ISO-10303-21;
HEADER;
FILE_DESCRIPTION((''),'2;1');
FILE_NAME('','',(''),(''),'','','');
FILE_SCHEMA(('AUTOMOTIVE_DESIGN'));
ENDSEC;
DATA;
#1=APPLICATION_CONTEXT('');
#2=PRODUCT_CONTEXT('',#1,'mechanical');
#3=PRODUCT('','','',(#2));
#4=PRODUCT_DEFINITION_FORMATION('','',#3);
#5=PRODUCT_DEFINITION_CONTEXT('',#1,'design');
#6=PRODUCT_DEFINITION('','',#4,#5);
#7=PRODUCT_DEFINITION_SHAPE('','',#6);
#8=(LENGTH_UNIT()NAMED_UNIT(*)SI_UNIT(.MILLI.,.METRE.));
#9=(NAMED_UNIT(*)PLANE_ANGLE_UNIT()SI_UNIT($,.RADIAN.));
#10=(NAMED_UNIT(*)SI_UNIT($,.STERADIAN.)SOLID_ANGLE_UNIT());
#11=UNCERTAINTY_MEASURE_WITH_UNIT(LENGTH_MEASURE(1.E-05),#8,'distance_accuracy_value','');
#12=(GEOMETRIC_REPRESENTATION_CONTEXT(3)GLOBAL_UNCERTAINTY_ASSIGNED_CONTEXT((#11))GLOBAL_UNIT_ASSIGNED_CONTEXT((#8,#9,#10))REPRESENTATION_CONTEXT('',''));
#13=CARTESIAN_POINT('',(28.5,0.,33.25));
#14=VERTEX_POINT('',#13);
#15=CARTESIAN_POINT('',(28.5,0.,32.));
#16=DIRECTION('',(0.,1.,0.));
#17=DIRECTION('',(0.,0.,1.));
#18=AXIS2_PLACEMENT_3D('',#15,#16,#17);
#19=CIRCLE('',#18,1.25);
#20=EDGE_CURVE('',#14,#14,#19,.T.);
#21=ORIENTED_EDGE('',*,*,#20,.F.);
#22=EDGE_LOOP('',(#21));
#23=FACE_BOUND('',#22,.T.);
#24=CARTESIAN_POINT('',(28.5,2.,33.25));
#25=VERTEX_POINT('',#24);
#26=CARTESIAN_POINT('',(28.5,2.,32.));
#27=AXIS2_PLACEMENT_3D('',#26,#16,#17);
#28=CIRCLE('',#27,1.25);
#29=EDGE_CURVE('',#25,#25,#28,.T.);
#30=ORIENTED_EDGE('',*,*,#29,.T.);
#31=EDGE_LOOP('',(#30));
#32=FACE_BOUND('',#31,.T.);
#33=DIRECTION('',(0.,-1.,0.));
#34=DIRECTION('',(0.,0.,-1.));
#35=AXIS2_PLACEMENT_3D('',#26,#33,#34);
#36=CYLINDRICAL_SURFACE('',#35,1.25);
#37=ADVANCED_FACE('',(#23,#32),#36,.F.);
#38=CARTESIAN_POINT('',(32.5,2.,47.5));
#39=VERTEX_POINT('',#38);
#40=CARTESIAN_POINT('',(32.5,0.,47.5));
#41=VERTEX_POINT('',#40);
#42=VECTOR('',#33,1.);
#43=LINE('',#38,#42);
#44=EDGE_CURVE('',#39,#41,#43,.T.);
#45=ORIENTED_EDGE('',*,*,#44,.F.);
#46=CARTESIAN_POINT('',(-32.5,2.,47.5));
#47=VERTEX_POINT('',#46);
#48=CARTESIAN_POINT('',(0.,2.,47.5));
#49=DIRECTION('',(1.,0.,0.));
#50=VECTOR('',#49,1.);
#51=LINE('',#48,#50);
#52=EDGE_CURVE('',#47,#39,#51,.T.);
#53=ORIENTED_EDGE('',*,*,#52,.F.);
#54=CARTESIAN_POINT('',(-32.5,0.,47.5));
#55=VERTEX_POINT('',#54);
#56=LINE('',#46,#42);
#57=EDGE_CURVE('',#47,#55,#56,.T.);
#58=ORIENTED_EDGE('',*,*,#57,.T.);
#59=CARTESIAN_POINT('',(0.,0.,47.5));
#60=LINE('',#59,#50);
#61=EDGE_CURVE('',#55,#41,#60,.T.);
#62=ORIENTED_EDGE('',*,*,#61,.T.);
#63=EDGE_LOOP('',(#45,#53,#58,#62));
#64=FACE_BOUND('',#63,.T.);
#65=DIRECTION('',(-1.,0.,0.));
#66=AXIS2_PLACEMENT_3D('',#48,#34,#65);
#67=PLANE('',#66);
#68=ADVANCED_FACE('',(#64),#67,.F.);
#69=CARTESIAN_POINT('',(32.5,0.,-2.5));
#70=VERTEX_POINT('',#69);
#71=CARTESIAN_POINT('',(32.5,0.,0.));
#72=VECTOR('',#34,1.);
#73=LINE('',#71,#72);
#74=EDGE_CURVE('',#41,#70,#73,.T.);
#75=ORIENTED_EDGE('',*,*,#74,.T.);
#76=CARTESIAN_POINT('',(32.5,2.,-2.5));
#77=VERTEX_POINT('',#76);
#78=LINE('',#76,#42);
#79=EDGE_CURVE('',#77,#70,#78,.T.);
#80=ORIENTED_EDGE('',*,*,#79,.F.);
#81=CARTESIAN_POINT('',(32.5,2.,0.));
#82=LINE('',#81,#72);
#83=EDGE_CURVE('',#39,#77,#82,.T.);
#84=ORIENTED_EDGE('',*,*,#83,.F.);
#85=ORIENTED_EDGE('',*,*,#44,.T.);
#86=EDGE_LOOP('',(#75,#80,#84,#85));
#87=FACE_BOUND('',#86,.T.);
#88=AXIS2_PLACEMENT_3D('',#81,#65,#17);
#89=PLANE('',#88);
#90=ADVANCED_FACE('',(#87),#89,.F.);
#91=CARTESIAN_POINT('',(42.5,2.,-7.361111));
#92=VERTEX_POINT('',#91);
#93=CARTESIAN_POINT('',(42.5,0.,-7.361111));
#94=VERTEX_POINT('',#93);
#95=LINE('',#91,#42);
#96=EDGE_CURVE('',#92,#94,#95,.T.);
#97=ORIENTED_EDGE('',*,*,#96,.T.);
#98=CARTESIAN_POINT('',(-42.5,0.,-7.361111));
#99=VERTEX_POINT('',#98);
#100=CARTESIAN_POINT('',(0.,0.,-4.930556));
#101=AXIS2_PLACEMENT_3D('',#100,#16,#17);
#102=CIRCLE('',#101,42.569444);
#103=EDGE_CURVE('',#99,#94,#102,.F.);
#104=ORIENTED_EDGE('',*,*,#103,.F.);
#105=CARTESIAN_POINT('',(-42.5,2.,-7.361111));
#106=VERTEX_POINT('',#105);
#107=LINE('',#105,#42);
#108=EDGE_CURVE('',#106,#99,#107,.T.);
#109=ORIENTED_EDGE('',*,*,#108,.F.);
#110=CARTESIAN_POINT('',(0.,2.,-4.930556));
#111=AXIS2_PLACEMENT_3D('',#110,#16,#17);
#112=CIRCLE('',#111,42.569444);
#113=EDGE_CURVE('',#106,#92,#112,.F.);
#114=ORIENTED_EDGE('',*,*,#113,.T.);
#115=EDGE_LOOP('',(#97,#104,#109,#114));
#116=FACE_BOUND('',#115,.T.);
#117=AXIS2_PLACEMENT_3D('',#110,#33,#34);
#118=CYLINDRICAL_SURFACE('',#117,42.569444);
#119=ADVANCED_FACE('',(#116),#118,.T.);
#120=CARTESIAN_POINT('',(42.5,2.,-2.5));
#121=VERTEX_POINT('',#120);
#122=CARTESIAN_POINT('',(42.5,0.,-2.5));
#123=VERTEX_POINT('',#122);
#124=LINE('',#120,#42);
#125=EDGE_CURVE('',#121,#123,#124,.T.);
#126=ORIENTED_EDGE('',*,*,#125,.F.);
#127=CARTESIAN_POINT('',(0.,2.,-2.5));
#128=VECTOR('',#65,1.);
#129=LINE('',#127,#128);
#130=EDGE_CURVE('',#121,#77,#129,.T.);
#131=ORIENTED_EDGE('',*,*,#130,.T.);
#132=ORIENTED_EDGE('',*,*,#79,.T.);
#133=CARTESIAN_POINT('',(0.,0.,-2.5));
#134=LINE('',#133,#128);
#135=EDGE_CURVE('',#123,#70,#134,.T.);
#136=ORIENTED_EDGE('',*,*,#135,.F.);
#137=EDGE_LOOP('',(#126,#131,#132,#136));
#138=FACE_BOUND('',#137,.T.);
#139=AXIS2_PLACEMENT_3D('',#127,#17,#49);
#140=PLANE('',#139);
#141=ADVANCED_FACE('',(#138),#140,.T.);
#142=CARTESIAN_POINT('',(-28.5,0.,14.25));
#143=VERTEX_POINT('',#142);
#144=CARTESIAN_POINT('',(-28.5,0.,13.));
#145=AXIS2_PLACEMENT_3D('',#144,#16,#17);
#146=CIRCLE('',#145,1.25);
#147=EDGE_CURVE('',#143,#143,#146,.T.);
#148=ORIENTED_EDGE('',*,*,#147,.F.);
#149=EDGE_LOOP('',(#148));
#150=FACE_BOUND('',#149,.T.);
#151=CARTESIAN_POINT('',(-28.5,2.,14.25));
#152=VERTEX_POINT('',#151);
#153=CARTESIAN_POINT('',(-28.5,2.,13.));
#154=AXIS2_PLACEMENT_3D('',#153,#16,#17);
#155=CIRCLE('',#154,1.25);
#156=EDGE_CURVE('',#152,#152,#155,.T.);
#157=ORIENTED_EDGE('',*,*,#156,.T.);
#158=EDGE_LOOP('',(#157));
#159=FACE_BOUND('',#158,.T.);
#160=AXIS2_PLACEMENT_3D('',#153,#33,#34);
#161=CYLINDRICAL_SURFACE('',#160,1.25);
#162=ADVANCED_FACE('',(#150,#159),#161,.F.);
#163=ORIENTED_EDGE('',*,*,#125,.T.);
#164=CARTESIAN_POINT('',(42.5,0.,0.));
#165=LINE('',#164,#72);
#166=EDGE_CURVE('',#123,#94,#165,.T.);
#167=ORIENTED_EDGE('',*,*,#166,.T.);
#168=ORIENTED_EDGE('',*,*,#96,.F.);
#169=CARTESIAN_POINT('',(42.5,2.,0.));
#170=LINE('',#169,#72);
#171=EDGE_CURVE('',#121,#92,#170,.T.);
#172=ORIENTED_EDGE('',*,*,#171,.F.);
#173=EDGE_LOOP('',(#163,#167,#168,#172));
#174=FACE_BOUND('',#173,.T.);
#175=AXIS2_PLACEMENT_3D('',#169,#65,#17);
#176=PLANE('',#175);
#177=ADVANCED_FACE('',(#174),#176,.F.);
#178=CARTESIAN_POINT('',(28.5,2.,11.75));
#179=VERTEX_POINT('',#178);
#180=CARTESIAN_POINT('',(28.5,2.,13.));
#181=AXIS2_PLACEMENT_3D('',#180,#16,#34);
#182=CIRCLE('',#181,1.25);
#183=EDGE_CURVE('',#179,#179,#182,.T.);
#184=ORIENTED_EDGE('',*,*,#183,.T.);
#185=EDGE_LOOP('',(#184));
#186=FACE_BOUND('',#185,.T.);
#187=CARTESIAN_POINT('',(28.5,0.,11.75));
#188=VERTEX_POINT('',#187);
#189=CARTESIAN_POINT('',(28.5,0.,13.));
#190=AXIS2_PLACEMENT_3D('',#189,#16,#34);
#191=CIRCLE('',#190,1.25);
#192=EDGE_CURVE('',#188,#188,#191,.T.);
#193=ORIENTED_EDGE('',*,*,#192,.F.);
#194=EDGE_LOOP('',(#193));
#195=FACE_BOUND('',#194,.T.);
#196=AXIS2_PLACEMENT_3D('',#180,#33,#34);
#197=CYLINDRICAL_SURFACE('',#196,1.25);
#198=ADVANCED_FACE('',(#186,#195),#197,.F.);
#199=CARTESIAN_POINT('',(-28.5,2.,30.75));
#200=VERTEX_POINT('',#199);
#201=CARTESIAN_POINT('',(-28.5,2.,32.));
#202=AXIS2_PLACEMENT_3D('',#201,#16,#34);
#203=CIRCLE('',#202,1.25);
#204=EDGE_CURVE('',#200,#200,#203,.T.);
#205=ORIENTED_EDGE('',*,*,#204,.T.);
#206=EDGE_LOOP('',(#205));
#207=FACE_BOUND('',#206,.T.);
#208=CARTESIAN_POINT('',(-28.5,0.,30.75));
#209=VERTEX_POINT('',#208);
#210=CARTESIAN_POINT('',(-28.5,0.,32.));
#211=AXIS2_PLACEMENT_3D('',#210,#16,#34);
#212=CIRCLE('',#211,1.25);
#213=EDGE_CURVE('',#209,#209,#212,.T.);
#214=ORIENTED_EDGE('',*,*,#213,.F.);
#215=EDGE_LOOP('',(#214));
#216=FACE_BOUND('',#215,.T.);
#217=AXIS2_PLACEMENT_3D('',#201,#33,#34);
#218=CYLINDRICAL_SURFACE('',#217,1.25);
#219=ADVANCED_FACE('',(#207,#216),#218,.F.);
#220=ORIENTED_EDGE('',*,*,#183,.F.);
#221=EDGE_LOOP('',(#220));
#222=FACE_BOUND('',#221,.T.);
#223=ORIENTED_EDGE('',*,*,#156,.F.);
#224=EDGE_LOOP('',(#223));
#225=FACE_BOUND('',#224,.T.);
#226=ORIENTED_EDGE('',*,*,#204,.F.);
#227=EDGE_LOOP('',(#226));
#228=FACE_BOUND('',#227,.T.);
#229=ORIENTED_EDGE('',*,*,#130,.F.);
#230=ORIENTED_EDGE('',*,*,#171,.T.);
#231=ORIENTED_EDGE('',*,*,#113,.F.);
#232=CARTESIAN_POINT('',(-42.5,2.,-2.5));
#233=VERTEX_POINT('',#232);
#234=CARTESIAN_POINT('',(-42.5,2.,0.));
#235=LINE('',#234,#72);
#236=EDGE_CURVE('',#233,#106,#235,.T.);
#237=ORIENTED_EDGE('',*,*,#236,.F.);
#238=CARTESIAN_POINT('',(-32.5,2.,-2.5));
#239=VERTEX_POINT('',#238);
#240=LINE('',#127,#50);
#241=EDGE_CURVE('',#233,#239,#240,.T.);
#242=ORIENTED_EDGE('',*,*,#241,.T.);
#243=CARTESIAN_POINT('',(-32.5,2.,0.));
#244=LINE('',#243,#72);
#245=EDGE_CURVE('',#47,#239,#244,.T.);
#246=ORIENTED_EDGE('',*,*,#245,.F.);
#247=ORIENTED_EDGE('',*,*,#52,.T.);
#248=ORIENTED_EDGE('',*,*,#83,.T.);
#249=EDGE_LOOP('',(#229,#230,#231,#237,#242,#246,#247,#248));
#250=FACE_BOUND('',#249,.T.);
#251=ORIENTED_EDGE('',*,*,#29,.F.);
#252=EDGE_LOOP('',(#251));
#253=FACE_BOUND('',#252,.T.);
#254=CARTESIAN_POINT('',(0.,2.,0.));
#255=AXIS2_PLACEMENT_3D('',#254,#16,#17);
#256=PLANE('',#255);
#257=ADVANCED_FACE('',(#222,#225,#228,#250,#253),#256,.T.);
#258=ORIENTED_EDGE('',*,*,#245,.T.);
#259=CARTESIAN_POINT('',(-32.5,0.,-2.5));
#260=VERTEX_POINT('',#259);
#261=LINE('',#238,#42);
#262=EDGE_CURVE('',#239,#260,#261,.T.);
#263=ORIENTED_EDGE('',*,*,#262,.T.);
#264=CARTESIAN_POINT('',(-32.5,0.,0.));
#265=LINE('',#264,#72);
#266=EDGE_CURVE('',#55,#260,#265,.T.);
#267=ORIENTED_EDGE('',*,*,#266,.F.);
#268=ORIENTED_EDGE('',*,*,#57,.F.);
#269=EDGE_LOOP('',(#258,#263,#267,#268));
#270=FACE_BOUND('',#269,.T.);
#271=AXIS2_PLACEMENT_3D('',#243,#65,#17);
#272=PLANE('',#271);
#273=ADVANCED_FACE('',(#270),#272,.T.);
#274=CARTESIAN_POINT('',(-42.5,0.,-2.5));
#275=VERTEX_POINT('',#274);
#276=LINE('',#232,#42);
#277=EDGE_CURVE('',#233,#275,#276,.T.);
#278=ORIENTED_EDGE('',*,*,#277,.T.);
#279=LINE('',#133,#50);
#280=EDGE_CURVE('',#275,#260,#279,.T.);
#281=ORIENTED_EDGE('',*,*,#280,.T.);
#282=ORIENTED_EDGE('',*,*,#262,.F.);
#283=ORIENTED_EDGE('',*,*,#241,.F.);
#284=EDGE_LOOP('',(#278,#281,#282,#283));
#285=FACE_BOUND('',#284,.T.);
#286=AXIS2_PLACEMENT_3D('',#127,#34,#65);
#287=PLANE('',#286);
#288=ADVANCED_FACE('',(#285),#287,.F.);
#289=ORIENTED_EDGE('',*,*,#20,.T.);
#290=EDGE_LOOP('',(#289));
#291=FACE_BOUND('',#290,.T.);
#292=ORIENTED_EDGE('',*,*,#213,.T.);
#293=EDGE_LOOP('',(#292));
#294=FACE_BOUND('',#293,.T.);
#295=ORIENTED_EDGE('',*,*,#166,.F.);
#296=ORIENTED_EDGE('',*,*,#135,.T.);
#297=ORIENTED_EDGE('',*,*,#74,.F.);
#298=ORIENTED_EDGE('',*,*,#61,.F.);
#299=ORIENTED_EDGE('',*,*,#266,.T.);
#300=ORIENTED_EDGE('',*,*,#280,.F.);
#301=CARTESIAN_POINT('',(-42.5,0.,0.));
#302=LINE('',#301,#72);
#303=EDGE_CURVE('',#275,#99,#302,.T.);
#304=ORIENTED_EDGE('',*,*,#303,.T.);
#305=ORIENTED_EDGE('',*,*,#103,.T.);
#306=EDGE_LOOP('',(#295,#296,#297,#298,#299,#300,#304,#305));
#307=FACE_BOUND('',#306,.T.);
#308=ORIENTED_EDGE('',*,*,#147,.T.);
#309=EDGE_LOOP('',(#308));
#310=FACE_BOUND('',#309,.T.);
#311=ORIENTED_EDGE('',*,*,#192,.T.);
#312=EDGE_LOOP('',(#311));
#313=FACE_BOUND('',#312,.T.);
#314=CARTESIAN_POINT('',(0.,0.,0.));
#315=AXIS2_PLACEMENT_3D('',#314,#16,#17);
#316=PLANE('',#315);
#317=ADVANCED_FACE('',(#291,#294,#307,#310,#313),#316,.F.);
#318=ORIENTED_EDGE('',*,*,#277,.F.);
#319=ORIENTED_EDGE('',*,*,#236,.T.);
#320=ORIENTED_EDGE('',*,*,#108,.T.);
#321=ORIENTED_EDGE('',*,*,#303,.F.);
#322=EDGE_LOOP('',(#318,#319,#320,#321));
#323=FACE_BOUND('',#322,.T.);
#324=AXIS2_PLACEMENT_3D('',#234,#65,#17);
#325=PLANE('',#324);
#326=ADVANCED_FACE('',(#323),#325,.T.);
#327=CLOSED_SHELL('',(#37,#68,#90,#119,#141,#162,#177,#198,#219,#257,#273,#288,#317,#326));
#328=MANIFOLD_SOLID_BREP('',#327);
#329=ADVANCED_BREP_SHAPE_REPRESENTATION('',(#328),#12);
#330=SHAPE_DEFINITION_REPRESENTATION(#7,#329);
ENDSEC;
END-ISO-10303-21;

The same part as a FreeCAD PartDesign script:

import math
import FreeCAD as App
import Part
import Sketcher

doc = App.newDocument("Part")
body = doc.addObject("PartDesign::Body", "Body")

sketch1 = body.newObject("Sketcher::SketchObject", "Sketch")
sketch1.AttachmentSupport = (doc.getObject("XZ_Plane"), [""])
sketch1.MapMode = "FlatFace"
sketch1.addGeometry([
    Part.LineSegment(App.Vector(-32.5, -2.5, 0), App.Vector(-32.5, 47.5, 0)),
    Part.LineSegment(App.Vector(-32.5, 47.5, 0), App.Vector(32.5, 47.5, 0)),
    Part.LineSegment(App.Vector(32.5, 47.5, 0), App.Vector(32.5, -2.5, 0)),
    Part.LineSegment(App.Vector(32.5, -2.5, 0), App.Vector(42.5, -2.5, 0)),
    Part.LineSegment(App.Vector(42.5, -2.5, 0), App.Vector(42.5, -7.4, 0)),
    Part.ArcOfCircle(Part.Circle(App.Vector(0, -4.9, 0), App.Vector(0, 0, 1), 42.6), math.radians(-90), math.radians(-3)),
    Part.ArcOfCircle(Part.Circle(App.Vector(0, -4.9, 0), App.Vector(0, 0, 1), 42.6), math.radians(-177), math.radians(-90)),
    Part.LineSegment(App.Vector(-42.5, -7.4, 0), App.Vector(-42.5, -2.5, 0)),
    Part.LineSegment(App.Vector(-42.5, -2.5, 0), App.Vector(-32.5, -2.5, 0)),
], False)
sketch1.addConstraint([
    Sketcher.Constraint("Coincident", 0, 2, 1, 1),
    Sketcher.Constraint("Coincident", 1, 2, 2, 1),
    Sketcher.Constraint("Coincident", 2, 2, 3, 1),
    Sketcher.Constraint("Coincident", 3, 2, 4, 1),
    Sketcher.Constraint("Coincident", 4, 2, 5, 2),
    Sketcher.Constraint("Tangent", 5, 1, 6, 2),
    Sketcher.Constraint("Coincident", 6, 1, 7, 1),
    Sketcher.Constraint("Coincident", 7, 2, 8, 1),
    Sketcher.Constraint("Coincident", 8, 2, 0, 1),
    Sketcher.Constraint("Vertical", 0),
    Sketcher.Constraint("Horizontal", 1),
    Sketcher.Constraint("Vertical", 2),
    Sketcher.Constraint("Horizontal", 3),
    Sketcher.Constraint("Vertical", 4),
    Sketcher.Constraint("Vertical", 7),
    Sketcher.Constraint("Horizontal", 8),
    Sketcher.Constraint("Equal", 5, 6),
    Sketcher.Constraint("Symmetric", 4, 2, 6, 1, -2),
    Sketcher.Constraint("Symmetric", 2, 2, 8, 2, -2),
    Sketcher.Constraint("PointOnObject", 5, 1, -2),
    Sketcher.Constraint("DistanceX", 1, 1, 1, 2, 65.0),
    Sketcher.Constraint("DistanceX", 3, 1, 3, 2, 10.0),
    Sketcher.Constraint("DistanceY", 0, 1, 0, 2, 50.0),
    Sketcher.Constraint("DistanceY", 5, 1, 2, 2, 45.0),
    Sketcher.Constraint("DistanceY", -1, 1, 0, 2, 47.5),
    Sketcher.Constraint("Radius", 5, 42.569444),
])
pad1 = body.newObject("PartDesign::Pad", "Pad")
pad1.Profile = sketch1
pad1.Length = 2
pad1.Reversed = True

sketch2 = body.newObject("Sketcher::SketchObject", "Sketch001")
sketch2.AttachmentSupport = (doc.getObject("XZ_Plane"), [""])
sketch2.MapMode = "FlatFace"
sketch2.addGeometry([
    Part.Circle(App.Vector(-28.5, 13, 0), App.Vector(0, 0, 1), 1.2),
    Part.Circle(App.Vector(-28.5, 32, 0), App.Vector(0, 0, 1), 1.2),
    Part.Circle(App.Vector(28.5, 32, 0), App.Vector(0, 0, 1), 1.2),
    Part.Circle(App.Vector(28.5, 13, 0), App.Vector(0, 0, 1), 1.2),
], False)
sketch2.addConstraint([
    Sketcher.Constraint("Equal", 0, 1),
    Sketcher.Constraint("Equal", 1, 2),
    Sketcher.Constraint("Equal", 2, 3),
    Sketcher.Constraint("Symmetric", 1, 3, 2, 3, -2),
    Sketcher.Constraint("Symmetric", 0, 3, 3, 3, -2),
    Sketcher.Constraint("Vertical", 0, 3, 1, 3),
    Sketcher.Constraint("Diameter", 0, 2.5),
    Sketcher.Constraint("DistanceY", -1, 1, 0, 3, 13.0),
    Sketcher.Constraint("DistanceY", -1, 1, 1, 3, 32.0),
    Sketcher.Constraint("DistanceX", 1, 3, 2, 3, 57.0),
])
pocket1 = body.newObject("PartDesign::Pocket", "Pocket")
pocket1.Profile = sketch2
pocket1.Length = 2

doc.recompute()
